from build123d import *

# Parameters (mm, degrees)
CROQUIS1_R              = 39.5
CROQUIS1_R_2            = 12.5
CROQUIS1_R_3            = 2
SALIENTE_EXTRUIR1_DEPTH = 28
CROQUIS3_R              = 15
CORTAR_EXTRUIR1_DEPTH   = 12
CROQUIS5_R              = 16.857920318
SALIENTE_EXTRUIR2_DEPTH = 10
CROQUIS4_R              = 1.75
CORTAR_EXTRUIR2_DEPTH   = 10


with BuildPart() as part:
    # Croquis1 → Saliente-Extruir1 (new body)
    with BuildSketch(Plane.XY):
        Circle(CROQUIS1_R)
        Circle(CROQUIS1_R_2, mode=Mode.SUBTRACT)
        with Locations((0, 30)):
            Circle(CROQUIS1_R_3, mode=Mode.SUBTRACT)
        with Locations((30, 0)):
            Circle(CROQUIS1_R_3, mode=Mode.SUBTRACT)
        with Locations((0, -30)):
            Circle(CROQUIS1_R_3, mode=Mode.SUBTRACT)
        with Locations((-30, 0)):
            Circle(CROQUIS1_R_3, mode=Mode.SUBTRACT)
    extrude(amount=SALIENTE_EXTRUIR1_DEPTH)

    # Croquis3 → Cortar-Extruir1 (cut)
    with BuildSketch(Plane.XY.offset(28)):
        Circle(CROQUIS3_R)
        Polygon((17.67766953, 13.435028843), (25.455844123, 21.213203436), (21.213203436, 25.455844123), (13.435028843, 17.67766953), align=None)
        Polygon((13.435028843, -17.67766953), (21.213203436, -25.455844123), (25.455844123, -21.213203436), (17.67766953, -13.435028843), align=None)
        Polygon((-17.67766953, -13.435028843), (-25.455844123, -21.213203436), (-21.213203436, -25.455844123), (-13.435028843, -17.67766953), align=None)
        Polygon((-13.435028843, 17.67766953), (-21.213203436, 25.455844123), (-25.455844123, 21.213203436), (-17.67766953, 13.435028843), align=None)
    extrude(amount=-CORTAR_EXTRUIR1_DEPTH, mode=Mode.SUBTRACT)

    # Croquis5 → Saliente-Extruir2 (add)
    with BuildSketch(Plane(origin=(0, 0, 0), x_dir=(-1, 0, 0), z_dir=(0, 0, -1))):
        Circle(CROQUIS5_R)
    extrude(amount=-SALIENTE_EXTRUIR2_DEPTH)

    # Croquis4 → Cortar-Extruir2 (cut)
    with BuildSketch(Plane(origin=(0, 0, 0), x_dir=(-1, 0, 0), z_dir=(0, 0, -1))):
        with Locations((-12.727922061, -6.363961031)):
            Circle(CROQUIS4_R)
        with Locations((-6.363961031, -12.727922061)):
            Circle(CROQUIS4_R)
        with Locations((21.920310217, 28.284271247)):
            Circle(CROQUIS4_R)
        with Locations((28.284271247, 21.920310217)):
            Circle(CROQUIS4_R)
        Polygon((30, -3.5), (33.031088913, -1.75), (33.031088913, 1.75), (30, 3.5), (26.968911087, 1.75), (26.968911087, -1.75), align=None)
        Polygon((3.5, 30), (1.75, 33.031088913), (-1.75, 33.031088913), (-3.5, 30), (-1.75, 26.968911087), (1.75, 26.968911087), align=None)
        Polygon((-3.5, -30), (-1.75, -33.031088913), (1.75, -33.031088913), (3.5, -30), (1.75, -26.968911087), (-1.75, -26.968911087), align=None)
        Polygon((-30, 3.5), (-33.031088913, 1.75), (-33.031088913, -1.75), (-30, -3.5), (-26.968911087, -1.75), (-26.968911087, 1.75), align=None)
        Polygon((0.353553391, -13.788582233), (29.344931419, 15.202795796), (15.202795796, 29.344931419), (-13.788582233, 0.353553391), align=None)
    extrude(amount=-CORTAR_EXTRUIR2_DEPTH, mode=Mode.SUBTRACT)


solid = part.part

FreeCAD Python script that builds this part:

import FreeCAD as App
import Part
import Sketcher
from FreeCAD import Vector
Q = App.Units.Quantity


def add_polygon(sketch, points):
    """Adds a closed chain of lines whose ends are joined by coincident constraints."""
    first, n = sketch.GeometryCount, len(points)
    for a, b in zip(points, points[1:] + points[:1]):
        sketch.addGeometry(Part.LineSegment(App.Vector(*a, 0), App.Vector(*b, 0)), False)
    for i in range(n):
        sketch.addConstraint(Sketcher.Constraint("Coincident", first + i, 2, first + (i + 1) % n, 1))

doc = App.newDocument("Part")
body = doc.addObject("PartDesign::Body", "Body")

# Sketch on XY plane
sketch1 = doc.addObject("Sketcher::SketchObject", "Sketch")
body.addObject(sketch1)
sketch1.AttachmentSupport = (doc.XY_Plane, [""])
sketch1.MapMode = "FlatFace"
sketch1.addGeometry(Part.Circle(Vector(0, 0, 0), Vector(0, 0, 1), 39.5), False)
sketch1.addGeometry(Part.Circle(Vector(0, -30, 0), Vector(0, 0, 1), 2), False)
sketch1.addGeometry(Part.Circle(Vector(-30, 0, 0), Vector(0, 0, 1), 2), False)
sketch1.addGeometry(Part.Circle(Vector(0, 0, 0), Vector(0, 0, 1), 12.5), False)
sketch1.addGeometry(Part.Circle(Vector(30, 0, 0), Vector(0, 0, 1), 2), False)
sketch1.addGeometry(Part.Circle(Vector(0, 30, 0), Vector(0, 0, 1), 2), False)
sketch1.addConstraint(Sketcher.Constraint("Coincident", 0, 3, -1, 1))
sketch1.addConstraint(Sketcher.Constraint("Coincident", 3, 3, -1, 1))
sketch1.addConstraint(Sketcher.Constraint("Equal", 1, 2))
sketch1.addConstraint(Sketcher.Constraint("Equal", 2, 4))
sketch1.addConstraint(Sketcher.Constraint("Equal", 4, 5))
sketch1.addConstraint(Sketcher.Constraint("Symmetric", 2, 3, 4, 3, -1, 1))
sketch1.addConstraint(Sketcher.Constraint("Symmetric", 1, 3, 5, 3, -1, 1))
sketch1.addConstraint(Sketcher.Constraint("PointOnObject", 1, 3, -2))
sketch1.addConstraint(Sketcher.Constraint("PointOnObject", 2, 3, -1))
sketch1.addConstraint(Sketcher.Constraint("Diameter", 0, Q("79 mm")))
sketch1.addConstraint(Sketcher.Constraint("Diameter", 1, Q("4 mm")))
sketch1.addConstraint(Sketcher.Constraint("Diameter", 3, Q("25 mm")))
sketch1.addConstraint(Sketcher.Constraint("DistanceY", 1, 3, -1, 1, Q("30 mm")))
sketch1.addConstraint(Sketcher.Constraint("DistanceX", 2, 3, -1, 1, Q("30 mm")))
pad1 = doc.addObject("PartDesign::Pad", "Pad")
body.addObject(pad1)
pad1.Profile = sketch1
pad1.Length = 28

# Sketch on XY plane
sketch2 = doc.addObject("Sketcher::SketchObject", "Sketch001")
body.addObject(sketch2)
sketch2.AttachmentSupport = (doc.XY_Plane, [""])
sketch2.MapMode = "FlatFace"
sketch2.AttachmentOffset = App.Placement(Vector(0, 0, 28), App.Rotation())
sketch2.addGeometry(Part.Circle(Vector(0, 0, 0), Vector(0, 0, 1), 15), False)  # 0
add_polygon(sketch2, [(17.67767, 13.435029), (25.455844, 21.213203), (21.213203, 25.455844), (13.435029, 17.67767)])  # lines 1-4
add_polygon(sketch2, [(13.435029, -17.67767), (21.213203, -25.455844), (25.455844, -21.213203), (17.67767, -13.435029)])  # lines 5-8
add_polygon(sketch2, [(-17.67767, -13.435029), (-25.455844, -21.213203), (-21.213203, -25.455844), (-13.435029, -17.67767)])  # lines 9-12
add_polygon(sketch2, [(-13.435029, 17.67767), (-21.213203, 25.455844), (-25.455844, 21.213203), (-17.67767, 13.435029)])  # lines 13-16
sketch2.addConstraint(Sketcher.Constraint("Coincident", 0, 3, -1, 1))
sketch2.addConstraint(Sketcher.Constraint("Symmetric", 1, 2, 9, 2, -1, 1))
sketch2.addConstraint(Sketcher.Constraint("Symmetric", 2, 2, 10, 2, -1, 1))
sketch2.addConstraint(Sketcher.Constraint("Symmetric", 3, 2, 11, 2, -1, 1))
sketch2.addConstraint(Sketcher.Constraint("Symmetric", 4, 2, 12, 2, -1, 1))
sketch2.addConstraint(Sketcher.Constraint("Symmetric", 5, 2, 13, 2, -1, 1))
sketch2.addConstraint(Sketcher.Constraint("Symmetric", 6, 2, 14, 2, -1, 1))
sketch2.addConstraint(Sketcher.Constraint("Symmetric", 7, 2, 15, 2, -1, 1))
sketch2.addConstraint(Sketcher.Constraint("Symmetric", 8, 2, 16, 2, -1, 1))
sketch2.addConstraint(Sketcher.Constraint("Symmetric", 6, 2, 9, 2, -2))
sketch2.addConstraint(Sketcher.Constraint("Symmetric", 5, 2, 10, 2, -2))
sketch2.addConstraint(Sketcher.Constraint("Symmetric", 8, 2, 11, 2, -2))
sketch2.addConstraint(Sketcher.Constraint("Symmetric", 7, 2, 12, 2, -2))
sketch2.addConstraint(Sketcher.Constraint("Perpendicular", 1, 2))
sketch2.addConstraint(Sketcher.Constraint("Perpendicular", 2, 3))
sketch2.addConstraint(Sketcher.Constraint("Perpendicular", 3, 4))
sketch2.addConstraint(Sketcher.Constraint("Parallel", 4, 5))
sketch2.addConstraint(Sketcher.Constraint("Diameter", 0, Q("30 mm")))
sketch2.addConstraint(Sketcher.Constraint("Distance", 1, Q("11 mm")))
sketch2.addConstraint(Sketcher.Constraint("Distance", 2, Q("6 mm")))
sketch2.addConstraint(Sketcher.Constraint("DistanceY", 7, 2, 3, 2, Q("31.112698 mm")))
sketch2.addConstraint(Sketcher.Constraint("DistanceX", 11, 2, 7, 2, Q("31.112698 mm")))
pocket1 = doc.addObject("PartDesign::Pocket", "Pocket")
body.addObject(pocket1)
pocket1.Profile = sketch2
pocket1.Length = 12

# Sketch on XY plane
sketch3 = doc.addObject("Sketcher::SketchObject", "Sketch002")
body.addObject(sketch3)
sketch3.AttachmentSupport = (doc.XY_Plane, [""])
sketch3.MapMode = "FlatFace"
sketch3.addGeometry(Part.Circle(Vector(0, 0, 0), Vector(0, 0, 1), 16.85792), False)
sketch3.addConstraint(Sketcher.Constraint("Coincident", 0, 3, -1, 1))
sketch3.addConstraint(Sketcher.Constraint("Diameter", 0, Q("33.715841 mm")))
pad2 = doc.addObject("PartDesign::Pad", "Pad001")
body.addObject(pad2)
pad2.Profile = sketch3
pad2.Length = 10

# Sketch on XY plane
sketch4 = doc.addObject("Sketcher::SketchObject", "Sketch003")
body.addObject(sketch4)
sketch4.AttachmentSupport = (doc.XY_Plane, [""])
sketch4.MapMode = "FlatFace"
sketch4.addGeometry(Part.Circle(Vector(12.727922, -6.363961, 0), Vector(0, 0, 1), 1.75), False)  # 0
sketch4.addGeometry(Part.Circle(Vector(6.363961, -12.727922, 0), Vector(0, 0, 1), 1.75), False)  # 1
sketch4.addGeometry(Part.Circle(Vector(-21.92031, 28.284271, 0), Vector(0, 0, 1), 1.75), False)  # 2
sketch4.addGeometry(Part.Circle(Vector(-28.284271, 21.92031, 0), Vector(0, 0, 1), 1.75), False)  # 3
add_polygon(sketch4, [(-30, -3.5), (-33.031089, -1.75), (-33.031089, 1.75), (-30, 3.5), (-26.968911, 1.75), (-26.968911, -1.75)])  # lines 4-9
add_polygon(sketch4, [(-3.5, 30), (-1.75, 33.031089), (1.75, 33.031089), (3.5, 30), (1.75, 26.968911), (-1.75, 26.968911)])  # lines 10-15
add_polygon(sketch4, [(3.5, -30), (1.75, -33.031089), (-1.75, -33.031089), (-3.5, -30), (-1.75, -26.968911), (1.75, -26.968911)])  # lines 16-21
add_polygon(sketch4, [(30, 3.5), (33.031089, 1.75), (33.031089, -1.75), (30, -3.5), (26.968911, -1.75), (26.968911, 1.75)])  # lines 22-27
add_polygon(sketch4, [(-0.353553, -13.788582), (-29.344931, 15.202796), (-15.202796, 29.344931), (13.788582, 0.353553)])  # lines 28-31
sketch4.addConstraint(Sketcher.Constraint("Vertical", 5))
sketch4.addConstraint(Sketcher.Constraint("Vertical", 8))
sketch4.addConstraint(Sketcher.Constraint("Horizontal", 11))
sketch4.addConstraint(Sketcher.Constraint("Horizontal", 14))
sketch4.addConstraint(Sketcher.Constraint("Horizontal", 17))
sketch4.addConstraint(Sketcher.Constraint("Horizontal", 20))
sketch4.addConstraint(Sketcher.Constraint("Vertical", 23))
sketch4.addConstraint(Sketcher.Constraint("Vertical", 26))
sketch4.addConstraint(Sketcher.Constraint("Equal", 0, 1))
sketch4.addConstraint(Sketcher.Constraint("Equal", 1, 2))
sketch4.addConstraint(Sketcher.Constraint("Equal", 2, 3))
sketch4.addConstraint(Sketcher.Constraint("Symmetric", 10, 2, 16, 2, -1, 1))
sketch4.addConstraint(Sketcher.Constraint("Symmetric", 12, 2, 18, 2, -1, 1))
sketch4.addConstraint(Sketcher.Constraint("Symmetric", 13, 2, 19, 2, -1, 1))
sketch4.addConstraint(Sketcher.Constraint("Symmetric", 15, 2, 21, 2, -1, 1))
sketch4.addConstraint(Sketcher.Constraint("Symmetric", 4, 2, 22, 2, -1, 1))
sketch4.addConstraint(Sketcher.Constraint("Symmetric", 6, 2, 24, 2, -1, 1))
sketch4.addConstraint(Sketcher.Constraint("Symmetric", 7, 2, 25, 2, -1, 1))
sketch4.addConstraint(Sketcher.Constraint("Symmetric", 9, 2, 27, 2, -1, 1))
sketch4.addConstraint(Sketcher.Constraint("Symmetric", 12, 2, 15, 2, -2))
sketch4.addConstraint(Sketcher.Constraint("Symmetric", 9, 2, 24, 2, -2))
sketch4.addConstraint(Sketcher.Constraint("Parallel", 4, 7))
sketch4.addConstraint(Sketcher.Constraint("Parallel", 6, 9))
sketch4.addConstraint(Sketcher.Constraint("Perpendicular", 7, 10))
sketch4.addConstraint(Sketcher.Constraint("Perpendicular", 9, 12))
sketch4.addConstraint(Sketcher.Constraint("Parallel", 10, 13))
sketch4.addConstraint(Sketcher.Constraint("Parallel", 12, 15))
sketch4.addConstraint(Sketcher.Constraint("Parallel", 15, 18))
sketch4.addConstraint(Sketcher.Constraint("Parallel", 18, 21))
sketch4.addConstraint(Sketcher.Constraint("Perpendicular", 21, 24))
sketch4.addConstraint(Sketcher.Constraint("Parallel", 24, 27))
sketch4.addConstraint(Sketcher.Constraint("Perpendicular", 28, 29))
sketch4.addConstraint(Sketcher.Constraint("Perpendicular", 29, 30))
sketch4.addConstraint(Sketcher.Constraint("Perpendicular", 30, 31))
sketch4.addConstraint(Sketcher.Constraint("Horizontal", 5, 2, 7, 2))
sketch4.addConstraint(Sketcher.Constraint("Horizontal", 4, 2, 8, 2))
sketch4.addConstraint(Sketcher.Constraint("Vertical", 11, 2, 13, 2))
sketch4.addConstraint(Sketcher.Constraint("Equal", 20, 5))
sketch4.addConstraint(Sketcher.Constraint("Equal", 9, 10))
sketch4.addConstraint(Sketcher.Constraint("Diameter", 0, Q("3.5 mm")))
sketch4.addConstraint(Sketcher.Constraint("Angle", 4, Q("150 deg")))
sketch4.addConstraint(Sketcher.Constraint("Angle", 28, Q("135 deg")))
sketch4.addConstraint(Sketcher.Constraint("Distance", 28, Q("41 mm")))
sketch4.addConstraint(Sketcher.Constraint("Distance", 29, Q("20 mm")))
sketch4.addConstraint(Sketcher.Constraint("DistanceX", 11, 1, 11, 2, Q("3.5 mm")))
sketch4.addConstraint(Sketcher.Constraint("DistanceX", 6, 2, -1, 1, Q("30 mm")))
sketch4.addConstraint(Sketcher.Constraint("DistanceY", -1, 1, 12, 2, Q("30 mm")))
sketch4.addConstraint(Sketcher.Constraint("DistanceY", 9, 2, 6, 2, Q("7 mm")))
sketch4.addConstraint(Sketcher.Constraint("DistanceX", 7, 2, 2, 3, Q("5.048601 mm")))
sketch4.addConstraint(Sketcher.Constraint("DistanceY", 3, 3, 13, 2, Q("5.048601 mm")))
sketch4.addConstraint(Sketcher.Constraint("DistanceY", 0, 3, -1, 1, Q("6.363961 mm")))
sketch4.addConstraint(Sketcher.Constraint("DistanceX", -1, 1, 1, 3, Q("6.363961 mm")))
sketch4.addConstraint(Sketcher.Constraint("DistanceY", -1, 1, 2, 3, Q("28.284271 mm")))
sketch4.addConstraint(Sketcher.Constraint("DistanceX", 3, 3, -1, 1, Q("28.284271 mm")))
sketch4.addConstraint(Sketcher.Constraint("DistanceX", 28, 2, -1, 1, Q("29.344931 mm")))
sketch4.addConstraint(Sketcher.Constraint("DistanceY", -1, 1, 29, 2, Q("29.344931 mm")))
sketch4.addConstraint(Sketcher.Constraint("DistanceX", 1, 3, 0, 3, Q("6.363961 mm")))
sketch4.addConstraint(Sketcher.Constraint("DistanceY", 1, 3, 0, 3, Q("6.363961 mm")))
pocket2 = doc.addObject("PartDesign::Pocket", "Pocket001")
body.addObject(pocket2)
pocket2.Profile = sketch4
pocket2.Length = 10
pocket2.Reversed = True

doc.recompute()
